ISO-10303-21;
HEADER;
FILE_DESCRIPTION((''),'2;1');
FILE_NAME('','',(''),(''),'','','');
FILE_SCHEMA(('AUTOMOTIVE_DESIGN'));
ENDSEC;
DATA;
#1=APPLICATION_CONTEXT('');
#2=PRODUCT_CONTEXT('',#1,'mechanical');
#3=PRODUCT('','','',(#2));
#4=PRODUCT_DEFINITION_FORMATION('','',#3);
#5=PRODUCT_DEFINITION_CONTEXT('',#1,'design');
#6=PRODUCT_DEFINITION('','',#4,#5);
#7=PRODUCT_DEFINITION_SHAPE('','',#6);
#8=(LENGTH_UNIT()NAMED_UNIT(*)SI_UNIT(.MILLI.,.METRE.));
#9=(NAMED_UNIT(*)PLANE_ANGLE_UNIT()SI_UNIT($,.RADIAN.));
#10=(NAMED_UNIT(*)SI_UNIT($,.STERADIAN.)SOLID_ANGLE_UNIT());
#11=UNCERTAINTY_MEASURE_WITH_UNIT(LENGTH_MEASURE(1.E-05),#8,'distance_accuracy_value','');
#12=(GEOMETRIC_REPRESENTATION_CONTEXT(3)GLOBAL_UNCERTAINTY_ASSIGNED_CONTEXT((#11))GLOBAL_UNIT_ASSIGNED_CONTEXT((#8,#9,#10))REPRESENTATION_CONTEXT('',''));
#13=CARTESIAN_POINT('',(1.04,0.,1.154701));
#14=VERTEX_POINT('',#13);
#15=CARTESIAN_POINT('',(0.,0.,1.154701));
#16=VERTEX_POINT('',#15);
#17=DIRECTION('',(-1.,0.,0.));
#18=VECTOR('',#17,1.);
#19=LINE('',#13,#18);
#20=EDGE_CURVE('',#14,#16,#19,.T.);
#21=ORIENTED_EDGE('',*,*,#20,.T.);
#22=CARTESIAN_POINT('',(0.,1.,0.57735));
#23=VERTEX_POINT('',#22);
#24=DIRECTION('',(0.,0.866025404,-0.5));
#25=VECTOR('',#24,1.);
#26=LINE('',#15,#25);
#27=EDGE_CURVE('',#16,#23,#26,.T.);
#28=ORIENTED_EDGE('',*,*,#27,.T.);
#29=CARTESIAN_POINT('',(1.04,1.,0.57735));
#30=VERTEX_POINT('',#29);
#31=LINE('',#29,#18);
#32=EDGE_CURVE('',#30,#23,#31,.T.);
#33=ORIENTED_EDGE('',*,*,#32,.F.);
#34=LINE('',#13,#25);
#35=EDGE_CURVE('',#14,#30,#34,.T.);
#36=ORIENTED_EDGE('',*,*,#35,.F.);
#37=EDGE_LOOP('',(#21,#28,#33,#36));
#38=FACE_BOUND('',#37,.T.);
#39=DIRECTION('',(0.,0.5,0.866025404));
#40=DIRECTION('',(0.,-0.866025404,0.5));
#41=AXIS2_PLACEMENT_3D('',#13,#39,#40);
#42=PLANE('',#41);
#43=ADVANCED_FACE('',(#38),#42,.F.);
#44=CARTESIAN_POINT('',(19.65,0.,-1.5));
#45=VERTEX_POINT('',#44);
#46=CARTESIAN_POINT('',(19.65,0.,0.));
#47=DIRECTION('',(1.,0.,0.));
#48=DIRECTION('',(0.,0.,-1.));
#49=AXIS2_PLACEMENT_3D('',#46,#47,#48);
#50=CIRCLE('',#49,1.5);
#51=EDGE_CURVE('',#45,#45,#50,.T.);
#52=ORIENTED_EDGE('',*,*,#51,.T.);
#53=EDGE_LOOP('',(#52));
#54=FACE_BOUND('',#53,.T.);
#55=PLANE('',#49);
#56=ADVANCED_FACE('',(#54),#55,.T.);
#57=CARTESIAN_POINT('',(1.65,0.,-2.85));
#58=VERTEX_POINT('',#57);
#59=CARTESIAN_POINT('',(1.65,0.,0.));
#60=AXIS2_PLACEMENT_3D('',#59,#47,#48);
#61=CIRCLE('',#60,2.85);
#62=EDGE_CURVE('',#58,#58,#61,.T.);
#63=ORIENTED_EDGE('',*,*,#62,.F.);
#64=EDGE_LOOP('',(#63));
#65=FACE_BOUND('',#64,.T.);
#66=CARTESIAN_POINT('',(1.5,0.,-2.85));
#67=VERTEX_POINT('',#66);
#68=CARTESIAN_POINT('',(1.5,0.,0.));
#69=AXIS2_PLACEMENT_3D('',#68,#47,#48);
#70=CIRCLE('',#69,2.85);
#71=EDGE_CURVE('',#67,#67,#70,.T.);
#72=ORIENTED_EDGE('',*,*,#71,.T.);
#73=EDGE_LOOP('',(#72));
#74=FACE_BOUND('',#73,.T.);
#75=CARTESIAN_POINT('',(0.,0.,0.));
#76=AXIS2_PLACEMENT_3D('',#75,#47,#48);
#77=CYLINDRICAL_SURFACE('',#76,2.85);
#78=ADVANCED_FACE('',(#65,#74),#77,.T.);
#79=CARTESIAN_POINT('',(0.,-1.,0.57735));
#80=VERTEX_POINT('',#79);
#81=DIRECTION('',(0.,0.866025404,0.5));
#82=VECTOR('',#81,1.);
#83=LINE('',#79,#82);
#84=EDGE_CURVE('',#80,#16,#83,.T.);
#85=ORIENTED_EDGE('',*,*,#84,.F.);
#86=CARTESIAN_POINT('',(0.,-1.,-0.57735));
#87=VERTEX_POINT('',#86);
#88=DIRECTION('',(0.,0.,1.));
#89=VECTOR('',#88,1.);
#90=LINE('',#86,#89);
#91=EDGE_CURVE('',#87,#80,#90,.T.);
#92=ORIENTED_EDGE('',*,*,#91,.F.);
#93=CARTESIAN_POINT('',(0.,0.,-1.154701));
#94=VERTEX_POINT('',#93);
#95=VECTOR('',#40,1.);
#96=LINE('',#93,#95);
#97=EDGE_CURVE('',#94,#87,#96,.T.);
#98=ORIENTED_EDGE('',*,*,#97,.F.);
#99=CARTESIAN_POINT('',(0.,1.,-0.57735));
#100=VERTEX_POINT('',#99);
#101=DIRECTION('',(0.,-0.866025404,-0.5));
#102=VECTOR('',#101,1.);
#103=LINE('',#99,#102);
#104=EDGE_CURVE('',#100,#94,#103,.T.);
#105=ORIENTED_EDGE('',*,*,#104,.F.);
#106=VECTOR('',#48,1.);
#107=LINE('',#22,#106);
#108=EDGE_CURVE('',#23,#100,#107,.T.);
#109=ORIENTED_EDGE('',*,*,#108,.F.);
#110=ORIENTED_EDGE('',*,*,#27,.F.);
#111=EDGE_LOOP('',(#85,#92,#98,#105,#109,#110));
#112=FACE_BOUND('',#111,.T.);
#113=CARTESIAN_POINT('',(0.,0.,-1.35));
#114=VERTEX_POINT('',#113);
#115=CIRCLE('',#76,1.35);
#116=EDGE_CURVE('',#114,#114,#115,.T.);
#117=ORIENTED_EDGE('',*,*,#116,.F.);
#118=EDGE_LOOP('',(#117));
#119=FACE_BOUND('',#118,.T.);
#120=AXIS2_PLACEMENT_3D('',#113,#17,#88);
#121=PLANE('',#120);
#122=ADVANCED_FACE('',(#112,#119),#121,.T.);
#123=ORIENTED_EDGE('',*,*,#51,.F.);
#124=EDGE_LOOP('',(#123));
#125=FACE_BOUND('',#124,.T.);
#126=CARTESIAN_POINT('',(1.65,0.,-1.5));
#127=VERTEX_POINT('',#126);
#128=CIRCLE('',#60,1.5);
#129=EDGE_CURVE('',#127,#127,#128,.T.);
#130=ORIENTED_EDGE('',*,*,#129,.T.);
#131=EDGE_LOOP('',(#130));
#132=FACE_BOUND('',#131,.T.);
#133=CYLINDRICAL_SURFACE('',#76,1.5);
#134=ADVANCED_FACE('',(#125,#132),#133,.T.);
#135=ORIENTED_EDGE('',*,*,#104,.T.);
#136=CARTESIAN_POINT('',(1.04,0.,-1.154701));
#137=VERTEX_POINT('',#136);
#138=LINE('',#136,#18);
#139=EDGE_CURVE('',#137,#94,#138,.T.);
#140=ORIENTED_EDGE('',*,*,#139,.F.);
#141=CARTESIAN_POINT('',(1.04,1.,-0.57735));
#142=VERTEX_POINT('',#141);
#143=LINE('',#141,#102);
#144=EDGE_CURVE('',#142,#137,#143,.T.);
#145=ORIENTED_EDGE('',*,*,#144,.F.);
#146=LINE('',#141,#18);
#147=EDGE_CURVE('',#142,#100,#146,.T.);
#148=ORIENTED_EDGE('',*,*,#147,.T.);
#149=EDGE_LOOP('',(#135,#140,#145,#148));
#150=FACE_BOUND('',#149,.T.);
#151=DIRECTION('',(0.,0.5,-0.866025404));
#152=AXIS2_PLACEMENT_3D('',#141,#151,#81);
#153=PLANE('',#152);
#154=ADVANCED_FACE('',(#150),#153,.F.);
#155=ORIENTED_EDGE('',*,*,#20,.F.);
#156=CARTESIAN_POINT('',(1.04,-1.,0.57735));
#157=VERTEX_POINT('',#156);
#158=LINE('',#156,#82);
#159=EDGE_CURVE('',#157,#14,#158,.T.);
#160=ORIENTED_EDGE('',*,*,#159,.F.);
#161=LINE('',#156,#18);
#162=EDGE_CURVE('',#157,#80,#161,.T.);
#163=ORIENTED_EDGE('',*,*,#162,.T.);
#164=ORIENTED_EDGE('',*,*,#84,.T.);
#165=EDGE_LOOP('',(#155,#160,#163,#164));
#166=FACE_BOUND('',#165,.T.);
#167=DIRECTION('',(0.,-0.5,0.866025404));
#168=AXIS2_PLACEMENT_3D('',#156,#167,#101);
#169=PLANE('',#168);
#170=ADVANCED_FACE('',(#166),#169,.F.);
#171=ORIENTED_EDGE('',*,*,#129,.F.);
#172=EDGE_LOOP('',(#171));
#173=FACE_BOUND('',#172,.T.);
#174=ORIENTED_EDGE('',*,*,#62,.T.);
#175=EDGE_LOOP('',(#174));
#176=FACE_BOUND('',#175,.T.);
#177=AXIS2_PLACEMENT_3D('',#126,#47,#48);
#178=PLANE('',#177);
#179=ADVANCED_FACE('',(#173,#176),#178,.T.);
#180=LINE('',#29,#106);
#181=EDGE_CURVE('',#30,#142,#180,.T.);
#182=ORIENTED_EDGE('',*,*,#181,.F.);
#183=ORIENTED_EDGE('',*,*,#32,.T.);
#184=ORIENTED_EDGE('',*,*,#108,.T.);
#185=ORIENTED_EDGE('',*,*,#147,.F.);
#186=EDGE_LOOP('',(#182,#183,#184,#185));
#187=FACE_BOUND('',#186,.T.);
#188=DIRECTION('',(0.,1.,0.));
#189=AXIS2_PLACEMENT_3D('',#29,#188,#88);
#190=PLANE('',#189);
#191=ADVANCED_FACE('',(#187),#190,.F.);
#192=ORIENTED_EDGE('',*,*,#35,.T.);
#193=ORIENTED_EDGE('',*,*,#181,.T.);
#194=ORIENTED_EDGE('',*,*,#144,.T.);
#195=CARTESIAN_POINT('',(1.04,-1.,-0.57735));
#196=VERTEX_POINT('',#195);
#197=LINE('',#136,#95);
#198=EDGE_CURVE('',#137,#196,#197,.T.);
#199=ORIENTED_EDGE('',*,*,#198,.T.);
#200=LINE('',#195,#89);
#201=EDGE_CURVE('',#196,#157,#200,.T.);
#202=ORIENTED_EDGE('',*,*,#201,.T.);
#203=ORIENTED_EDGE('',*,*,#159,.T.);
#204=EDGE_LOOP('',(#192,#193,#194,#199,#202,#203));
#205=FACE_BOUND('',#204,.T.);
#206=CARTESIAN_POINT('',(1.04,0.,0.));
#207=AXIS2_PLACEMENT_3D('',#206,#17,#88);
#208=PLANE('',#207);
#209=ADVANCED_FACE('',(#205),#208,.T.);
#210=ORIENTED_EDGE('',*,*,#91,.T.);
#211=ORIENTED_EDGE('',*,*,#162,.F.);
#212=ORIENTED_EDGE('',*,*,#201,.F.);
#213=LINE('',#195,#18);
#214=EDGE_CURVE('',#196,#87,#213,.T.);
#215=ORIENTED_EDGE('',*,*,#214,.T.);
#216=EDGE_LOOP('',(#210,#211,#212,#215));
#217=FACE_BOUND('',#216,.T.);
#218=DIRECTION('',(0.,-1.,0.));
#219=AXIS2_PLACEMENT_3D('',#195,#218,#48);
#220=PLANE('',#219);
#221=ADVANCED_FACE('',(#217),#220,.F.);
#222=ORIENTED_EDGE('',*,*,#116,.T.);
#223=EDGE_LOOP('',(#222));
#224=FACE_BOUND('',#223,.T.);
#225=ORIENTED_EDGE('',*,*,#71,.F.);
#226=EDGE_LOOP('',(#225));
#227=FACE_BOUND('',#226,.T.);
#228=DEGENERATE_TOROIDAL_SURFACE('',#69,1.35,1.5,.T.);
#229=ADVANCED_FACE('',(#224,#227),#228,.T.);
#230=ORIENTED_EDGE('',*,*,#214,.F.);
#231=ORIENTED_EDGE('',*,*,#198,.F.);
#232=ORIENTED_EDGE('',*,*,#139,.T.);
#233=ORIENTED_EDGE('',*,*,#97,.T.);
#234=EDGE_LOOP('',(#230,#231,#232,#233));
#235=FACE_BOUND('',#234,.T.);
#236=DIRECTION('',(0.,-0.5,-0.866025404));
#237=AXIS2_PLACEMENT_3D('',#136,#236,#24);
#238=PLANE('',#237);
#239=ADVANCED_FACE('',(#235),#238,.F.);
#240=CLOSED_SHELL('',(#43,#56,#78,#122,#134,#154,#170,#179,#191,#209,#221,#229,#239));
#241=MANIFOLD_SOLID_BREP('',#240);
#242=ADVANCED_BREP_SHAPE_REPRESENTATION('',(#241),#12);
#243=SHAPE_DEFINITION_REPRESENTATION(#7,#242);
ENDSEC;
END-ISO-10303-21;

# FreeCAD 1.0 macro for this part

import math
import FreeCAD as App
import Part
import Sketcher
Q = App.Units.Quantity


def add_polygon(sketch, points):
    """Adds a closed chain of lines whose ends are joined by coincident constraints."""
    first, n = sketch.GeometryCount, len(points)
    for a, b in zip(points, points[1:] + points[:1]):
        sketch.addGeometry(Part.LineSegment(App.Vector(*a, 0), App.Vector(*b, 0)), False)
    for i in range(n):
        sketch.addConstraint(Sketcher.Constraint("Coincident", first + i, 2, first + (i + 1) % n, 1))

doc = App.newDocument("Part")
body = doc.addObject("PartDesign::Body", "Body")

# Sketch on XZ plane
sketch1 = body.newObject("Sketcher::SketchObject", "Sketch")
sketch1.AttachmentSupport = (doc.getObject("XZ_Plane"), [""])
sketch1.MapMode = "FlatFace"
sketch1.addGeometry([
    Part.LineSegment(App.Vector(0, 0, 0), App.Vector(19.65, 0, 0)),  # 0
    Part.LineSegment(App.Vector(19.65, 0, 0), App.Vector(19.65, -1.5, 0)),  # 1
    Part.LineSegment(App.Vector(19.65, -1.5, 0), App.Vector(1.65, -1.5, 0)),  # 2
    Part.LineSegment(App.Vector(1.65, -1.5, 0), App.Vector(1.65, -2.85, 0)),  # 3
    Part.LineSegment(App.Vector(1.65, -2.85, 0), App.Vector(1.5, -2.85, 0)),  # 4
    Part.ArcOfCircle(Part.Circle(App.Vector(1.5, -1.35, 0), App.Vector(0, 0, 1), 1.5), math.radians(180), math.radians(270)),  # 5
    Part.LineSegment(App.Vector(0, -1.35, 0), App.Vector(0, 0, 0)),  # 6
], False)
sketch1.addConstraint([
    Sketcher.Constraint("Coincident", 0, 2, 1, 1),
    Sketcher.Constraint("Coincident", 1, 2, 2, 1),
    Sketcher.Constraint("Coincident", 2, 2, 3, 1),
    Sketcher.Constraint("Coincident", 3, 2, 4, 1),
    Sketcher.Constraint("Tangent", 4, 2, 5, 2),
    Sketcher.Constraint("Tangent", 5, 1, 6, 1),
    Sketcher.Constraint("Coincident", 6, 2, 0, 1),
    Sketcher.Constraint("Horizontal", 0),
    Sketcher.Constraint("Vertical", 1),
    Sketcher.Constraint("Horizontal", 2),
    Sketcher.Constraint("Vertical", 3),
    Sketcher.Constraint("Horizontal", 4),
    Sketcher.Constraint("Vertical", 6),
    Sketcher.Constraint("Coincident", 6, 2, -1, 1),
    Sketcher.Constraint("Equal", 3, 6),
    Sketcher.Constraint("Radius", 5, 1.5),
    Sketcher.Constraint("DistanceX", 2, 2, 2, 1, 18.0),
    Sketcher.Constraint("DistanceX", 0, 1, 0, 2, 19.65),
    Sketcher.Constraint("DistanceY", 3, 2, 3, 1, 1.35),
])
revolution = body.newObject("PartDesign::Revolution", "Revolution")
revolution.Profile = sketch1
revolution.ReferenceAxis = (sketch1, ["H_Axis"])
revolution.Angle = 360

# Sketch on YZ plane
sketch2 = body.newObject("Sketcher::SketchObject", "Sketch001")
sketch2.AttachmentSupport = (doc.getObject("YZ_Plane"), [""])
sketch2.MapMode = "FlatFace"
add_polygon(sketch2, [(0, 1.2), (1, 0.6), (1, -0.6), (0, -1.2), (-1, -0.6), (-1, 0.6)])  # lines 0-5
sketch2.addConstraint([
    Sketcher.Constraint("Vertical", 1),
    Sketcher.Constraint("Vertical", 4),
    Sketcher.Constraint("Symmetric", 0, 2, 3, 2, -1, 1),
    Sketcher.Constraint("Symmetric", 2, 2, 5, 2, -1, 1),
    Sketcher.Constraint("PointOnObject", 2, 2, -2),
    Sketcher.Constraint("Parallel", 2, 5),
    Sketcher.Constraint("Horizontal", 1, 2, 3, 2),
    Sketcher.Constraint("Angle", 0, Q("-30 deg")),
    Sketcher.Constraint("DistanceX", -1, 1, 0, 2, 1.0),
    Sketcher.Constraint("DistanceY", 1, 2, 1, 1, 1.154701),
])
pocket1 = body.newObject("PartDesign::Pocket", "Pocket")
pocket1.Profile = sketch2
pocket1.Length = 1.04
pocket1.Reversed = True

doc.recompute()
